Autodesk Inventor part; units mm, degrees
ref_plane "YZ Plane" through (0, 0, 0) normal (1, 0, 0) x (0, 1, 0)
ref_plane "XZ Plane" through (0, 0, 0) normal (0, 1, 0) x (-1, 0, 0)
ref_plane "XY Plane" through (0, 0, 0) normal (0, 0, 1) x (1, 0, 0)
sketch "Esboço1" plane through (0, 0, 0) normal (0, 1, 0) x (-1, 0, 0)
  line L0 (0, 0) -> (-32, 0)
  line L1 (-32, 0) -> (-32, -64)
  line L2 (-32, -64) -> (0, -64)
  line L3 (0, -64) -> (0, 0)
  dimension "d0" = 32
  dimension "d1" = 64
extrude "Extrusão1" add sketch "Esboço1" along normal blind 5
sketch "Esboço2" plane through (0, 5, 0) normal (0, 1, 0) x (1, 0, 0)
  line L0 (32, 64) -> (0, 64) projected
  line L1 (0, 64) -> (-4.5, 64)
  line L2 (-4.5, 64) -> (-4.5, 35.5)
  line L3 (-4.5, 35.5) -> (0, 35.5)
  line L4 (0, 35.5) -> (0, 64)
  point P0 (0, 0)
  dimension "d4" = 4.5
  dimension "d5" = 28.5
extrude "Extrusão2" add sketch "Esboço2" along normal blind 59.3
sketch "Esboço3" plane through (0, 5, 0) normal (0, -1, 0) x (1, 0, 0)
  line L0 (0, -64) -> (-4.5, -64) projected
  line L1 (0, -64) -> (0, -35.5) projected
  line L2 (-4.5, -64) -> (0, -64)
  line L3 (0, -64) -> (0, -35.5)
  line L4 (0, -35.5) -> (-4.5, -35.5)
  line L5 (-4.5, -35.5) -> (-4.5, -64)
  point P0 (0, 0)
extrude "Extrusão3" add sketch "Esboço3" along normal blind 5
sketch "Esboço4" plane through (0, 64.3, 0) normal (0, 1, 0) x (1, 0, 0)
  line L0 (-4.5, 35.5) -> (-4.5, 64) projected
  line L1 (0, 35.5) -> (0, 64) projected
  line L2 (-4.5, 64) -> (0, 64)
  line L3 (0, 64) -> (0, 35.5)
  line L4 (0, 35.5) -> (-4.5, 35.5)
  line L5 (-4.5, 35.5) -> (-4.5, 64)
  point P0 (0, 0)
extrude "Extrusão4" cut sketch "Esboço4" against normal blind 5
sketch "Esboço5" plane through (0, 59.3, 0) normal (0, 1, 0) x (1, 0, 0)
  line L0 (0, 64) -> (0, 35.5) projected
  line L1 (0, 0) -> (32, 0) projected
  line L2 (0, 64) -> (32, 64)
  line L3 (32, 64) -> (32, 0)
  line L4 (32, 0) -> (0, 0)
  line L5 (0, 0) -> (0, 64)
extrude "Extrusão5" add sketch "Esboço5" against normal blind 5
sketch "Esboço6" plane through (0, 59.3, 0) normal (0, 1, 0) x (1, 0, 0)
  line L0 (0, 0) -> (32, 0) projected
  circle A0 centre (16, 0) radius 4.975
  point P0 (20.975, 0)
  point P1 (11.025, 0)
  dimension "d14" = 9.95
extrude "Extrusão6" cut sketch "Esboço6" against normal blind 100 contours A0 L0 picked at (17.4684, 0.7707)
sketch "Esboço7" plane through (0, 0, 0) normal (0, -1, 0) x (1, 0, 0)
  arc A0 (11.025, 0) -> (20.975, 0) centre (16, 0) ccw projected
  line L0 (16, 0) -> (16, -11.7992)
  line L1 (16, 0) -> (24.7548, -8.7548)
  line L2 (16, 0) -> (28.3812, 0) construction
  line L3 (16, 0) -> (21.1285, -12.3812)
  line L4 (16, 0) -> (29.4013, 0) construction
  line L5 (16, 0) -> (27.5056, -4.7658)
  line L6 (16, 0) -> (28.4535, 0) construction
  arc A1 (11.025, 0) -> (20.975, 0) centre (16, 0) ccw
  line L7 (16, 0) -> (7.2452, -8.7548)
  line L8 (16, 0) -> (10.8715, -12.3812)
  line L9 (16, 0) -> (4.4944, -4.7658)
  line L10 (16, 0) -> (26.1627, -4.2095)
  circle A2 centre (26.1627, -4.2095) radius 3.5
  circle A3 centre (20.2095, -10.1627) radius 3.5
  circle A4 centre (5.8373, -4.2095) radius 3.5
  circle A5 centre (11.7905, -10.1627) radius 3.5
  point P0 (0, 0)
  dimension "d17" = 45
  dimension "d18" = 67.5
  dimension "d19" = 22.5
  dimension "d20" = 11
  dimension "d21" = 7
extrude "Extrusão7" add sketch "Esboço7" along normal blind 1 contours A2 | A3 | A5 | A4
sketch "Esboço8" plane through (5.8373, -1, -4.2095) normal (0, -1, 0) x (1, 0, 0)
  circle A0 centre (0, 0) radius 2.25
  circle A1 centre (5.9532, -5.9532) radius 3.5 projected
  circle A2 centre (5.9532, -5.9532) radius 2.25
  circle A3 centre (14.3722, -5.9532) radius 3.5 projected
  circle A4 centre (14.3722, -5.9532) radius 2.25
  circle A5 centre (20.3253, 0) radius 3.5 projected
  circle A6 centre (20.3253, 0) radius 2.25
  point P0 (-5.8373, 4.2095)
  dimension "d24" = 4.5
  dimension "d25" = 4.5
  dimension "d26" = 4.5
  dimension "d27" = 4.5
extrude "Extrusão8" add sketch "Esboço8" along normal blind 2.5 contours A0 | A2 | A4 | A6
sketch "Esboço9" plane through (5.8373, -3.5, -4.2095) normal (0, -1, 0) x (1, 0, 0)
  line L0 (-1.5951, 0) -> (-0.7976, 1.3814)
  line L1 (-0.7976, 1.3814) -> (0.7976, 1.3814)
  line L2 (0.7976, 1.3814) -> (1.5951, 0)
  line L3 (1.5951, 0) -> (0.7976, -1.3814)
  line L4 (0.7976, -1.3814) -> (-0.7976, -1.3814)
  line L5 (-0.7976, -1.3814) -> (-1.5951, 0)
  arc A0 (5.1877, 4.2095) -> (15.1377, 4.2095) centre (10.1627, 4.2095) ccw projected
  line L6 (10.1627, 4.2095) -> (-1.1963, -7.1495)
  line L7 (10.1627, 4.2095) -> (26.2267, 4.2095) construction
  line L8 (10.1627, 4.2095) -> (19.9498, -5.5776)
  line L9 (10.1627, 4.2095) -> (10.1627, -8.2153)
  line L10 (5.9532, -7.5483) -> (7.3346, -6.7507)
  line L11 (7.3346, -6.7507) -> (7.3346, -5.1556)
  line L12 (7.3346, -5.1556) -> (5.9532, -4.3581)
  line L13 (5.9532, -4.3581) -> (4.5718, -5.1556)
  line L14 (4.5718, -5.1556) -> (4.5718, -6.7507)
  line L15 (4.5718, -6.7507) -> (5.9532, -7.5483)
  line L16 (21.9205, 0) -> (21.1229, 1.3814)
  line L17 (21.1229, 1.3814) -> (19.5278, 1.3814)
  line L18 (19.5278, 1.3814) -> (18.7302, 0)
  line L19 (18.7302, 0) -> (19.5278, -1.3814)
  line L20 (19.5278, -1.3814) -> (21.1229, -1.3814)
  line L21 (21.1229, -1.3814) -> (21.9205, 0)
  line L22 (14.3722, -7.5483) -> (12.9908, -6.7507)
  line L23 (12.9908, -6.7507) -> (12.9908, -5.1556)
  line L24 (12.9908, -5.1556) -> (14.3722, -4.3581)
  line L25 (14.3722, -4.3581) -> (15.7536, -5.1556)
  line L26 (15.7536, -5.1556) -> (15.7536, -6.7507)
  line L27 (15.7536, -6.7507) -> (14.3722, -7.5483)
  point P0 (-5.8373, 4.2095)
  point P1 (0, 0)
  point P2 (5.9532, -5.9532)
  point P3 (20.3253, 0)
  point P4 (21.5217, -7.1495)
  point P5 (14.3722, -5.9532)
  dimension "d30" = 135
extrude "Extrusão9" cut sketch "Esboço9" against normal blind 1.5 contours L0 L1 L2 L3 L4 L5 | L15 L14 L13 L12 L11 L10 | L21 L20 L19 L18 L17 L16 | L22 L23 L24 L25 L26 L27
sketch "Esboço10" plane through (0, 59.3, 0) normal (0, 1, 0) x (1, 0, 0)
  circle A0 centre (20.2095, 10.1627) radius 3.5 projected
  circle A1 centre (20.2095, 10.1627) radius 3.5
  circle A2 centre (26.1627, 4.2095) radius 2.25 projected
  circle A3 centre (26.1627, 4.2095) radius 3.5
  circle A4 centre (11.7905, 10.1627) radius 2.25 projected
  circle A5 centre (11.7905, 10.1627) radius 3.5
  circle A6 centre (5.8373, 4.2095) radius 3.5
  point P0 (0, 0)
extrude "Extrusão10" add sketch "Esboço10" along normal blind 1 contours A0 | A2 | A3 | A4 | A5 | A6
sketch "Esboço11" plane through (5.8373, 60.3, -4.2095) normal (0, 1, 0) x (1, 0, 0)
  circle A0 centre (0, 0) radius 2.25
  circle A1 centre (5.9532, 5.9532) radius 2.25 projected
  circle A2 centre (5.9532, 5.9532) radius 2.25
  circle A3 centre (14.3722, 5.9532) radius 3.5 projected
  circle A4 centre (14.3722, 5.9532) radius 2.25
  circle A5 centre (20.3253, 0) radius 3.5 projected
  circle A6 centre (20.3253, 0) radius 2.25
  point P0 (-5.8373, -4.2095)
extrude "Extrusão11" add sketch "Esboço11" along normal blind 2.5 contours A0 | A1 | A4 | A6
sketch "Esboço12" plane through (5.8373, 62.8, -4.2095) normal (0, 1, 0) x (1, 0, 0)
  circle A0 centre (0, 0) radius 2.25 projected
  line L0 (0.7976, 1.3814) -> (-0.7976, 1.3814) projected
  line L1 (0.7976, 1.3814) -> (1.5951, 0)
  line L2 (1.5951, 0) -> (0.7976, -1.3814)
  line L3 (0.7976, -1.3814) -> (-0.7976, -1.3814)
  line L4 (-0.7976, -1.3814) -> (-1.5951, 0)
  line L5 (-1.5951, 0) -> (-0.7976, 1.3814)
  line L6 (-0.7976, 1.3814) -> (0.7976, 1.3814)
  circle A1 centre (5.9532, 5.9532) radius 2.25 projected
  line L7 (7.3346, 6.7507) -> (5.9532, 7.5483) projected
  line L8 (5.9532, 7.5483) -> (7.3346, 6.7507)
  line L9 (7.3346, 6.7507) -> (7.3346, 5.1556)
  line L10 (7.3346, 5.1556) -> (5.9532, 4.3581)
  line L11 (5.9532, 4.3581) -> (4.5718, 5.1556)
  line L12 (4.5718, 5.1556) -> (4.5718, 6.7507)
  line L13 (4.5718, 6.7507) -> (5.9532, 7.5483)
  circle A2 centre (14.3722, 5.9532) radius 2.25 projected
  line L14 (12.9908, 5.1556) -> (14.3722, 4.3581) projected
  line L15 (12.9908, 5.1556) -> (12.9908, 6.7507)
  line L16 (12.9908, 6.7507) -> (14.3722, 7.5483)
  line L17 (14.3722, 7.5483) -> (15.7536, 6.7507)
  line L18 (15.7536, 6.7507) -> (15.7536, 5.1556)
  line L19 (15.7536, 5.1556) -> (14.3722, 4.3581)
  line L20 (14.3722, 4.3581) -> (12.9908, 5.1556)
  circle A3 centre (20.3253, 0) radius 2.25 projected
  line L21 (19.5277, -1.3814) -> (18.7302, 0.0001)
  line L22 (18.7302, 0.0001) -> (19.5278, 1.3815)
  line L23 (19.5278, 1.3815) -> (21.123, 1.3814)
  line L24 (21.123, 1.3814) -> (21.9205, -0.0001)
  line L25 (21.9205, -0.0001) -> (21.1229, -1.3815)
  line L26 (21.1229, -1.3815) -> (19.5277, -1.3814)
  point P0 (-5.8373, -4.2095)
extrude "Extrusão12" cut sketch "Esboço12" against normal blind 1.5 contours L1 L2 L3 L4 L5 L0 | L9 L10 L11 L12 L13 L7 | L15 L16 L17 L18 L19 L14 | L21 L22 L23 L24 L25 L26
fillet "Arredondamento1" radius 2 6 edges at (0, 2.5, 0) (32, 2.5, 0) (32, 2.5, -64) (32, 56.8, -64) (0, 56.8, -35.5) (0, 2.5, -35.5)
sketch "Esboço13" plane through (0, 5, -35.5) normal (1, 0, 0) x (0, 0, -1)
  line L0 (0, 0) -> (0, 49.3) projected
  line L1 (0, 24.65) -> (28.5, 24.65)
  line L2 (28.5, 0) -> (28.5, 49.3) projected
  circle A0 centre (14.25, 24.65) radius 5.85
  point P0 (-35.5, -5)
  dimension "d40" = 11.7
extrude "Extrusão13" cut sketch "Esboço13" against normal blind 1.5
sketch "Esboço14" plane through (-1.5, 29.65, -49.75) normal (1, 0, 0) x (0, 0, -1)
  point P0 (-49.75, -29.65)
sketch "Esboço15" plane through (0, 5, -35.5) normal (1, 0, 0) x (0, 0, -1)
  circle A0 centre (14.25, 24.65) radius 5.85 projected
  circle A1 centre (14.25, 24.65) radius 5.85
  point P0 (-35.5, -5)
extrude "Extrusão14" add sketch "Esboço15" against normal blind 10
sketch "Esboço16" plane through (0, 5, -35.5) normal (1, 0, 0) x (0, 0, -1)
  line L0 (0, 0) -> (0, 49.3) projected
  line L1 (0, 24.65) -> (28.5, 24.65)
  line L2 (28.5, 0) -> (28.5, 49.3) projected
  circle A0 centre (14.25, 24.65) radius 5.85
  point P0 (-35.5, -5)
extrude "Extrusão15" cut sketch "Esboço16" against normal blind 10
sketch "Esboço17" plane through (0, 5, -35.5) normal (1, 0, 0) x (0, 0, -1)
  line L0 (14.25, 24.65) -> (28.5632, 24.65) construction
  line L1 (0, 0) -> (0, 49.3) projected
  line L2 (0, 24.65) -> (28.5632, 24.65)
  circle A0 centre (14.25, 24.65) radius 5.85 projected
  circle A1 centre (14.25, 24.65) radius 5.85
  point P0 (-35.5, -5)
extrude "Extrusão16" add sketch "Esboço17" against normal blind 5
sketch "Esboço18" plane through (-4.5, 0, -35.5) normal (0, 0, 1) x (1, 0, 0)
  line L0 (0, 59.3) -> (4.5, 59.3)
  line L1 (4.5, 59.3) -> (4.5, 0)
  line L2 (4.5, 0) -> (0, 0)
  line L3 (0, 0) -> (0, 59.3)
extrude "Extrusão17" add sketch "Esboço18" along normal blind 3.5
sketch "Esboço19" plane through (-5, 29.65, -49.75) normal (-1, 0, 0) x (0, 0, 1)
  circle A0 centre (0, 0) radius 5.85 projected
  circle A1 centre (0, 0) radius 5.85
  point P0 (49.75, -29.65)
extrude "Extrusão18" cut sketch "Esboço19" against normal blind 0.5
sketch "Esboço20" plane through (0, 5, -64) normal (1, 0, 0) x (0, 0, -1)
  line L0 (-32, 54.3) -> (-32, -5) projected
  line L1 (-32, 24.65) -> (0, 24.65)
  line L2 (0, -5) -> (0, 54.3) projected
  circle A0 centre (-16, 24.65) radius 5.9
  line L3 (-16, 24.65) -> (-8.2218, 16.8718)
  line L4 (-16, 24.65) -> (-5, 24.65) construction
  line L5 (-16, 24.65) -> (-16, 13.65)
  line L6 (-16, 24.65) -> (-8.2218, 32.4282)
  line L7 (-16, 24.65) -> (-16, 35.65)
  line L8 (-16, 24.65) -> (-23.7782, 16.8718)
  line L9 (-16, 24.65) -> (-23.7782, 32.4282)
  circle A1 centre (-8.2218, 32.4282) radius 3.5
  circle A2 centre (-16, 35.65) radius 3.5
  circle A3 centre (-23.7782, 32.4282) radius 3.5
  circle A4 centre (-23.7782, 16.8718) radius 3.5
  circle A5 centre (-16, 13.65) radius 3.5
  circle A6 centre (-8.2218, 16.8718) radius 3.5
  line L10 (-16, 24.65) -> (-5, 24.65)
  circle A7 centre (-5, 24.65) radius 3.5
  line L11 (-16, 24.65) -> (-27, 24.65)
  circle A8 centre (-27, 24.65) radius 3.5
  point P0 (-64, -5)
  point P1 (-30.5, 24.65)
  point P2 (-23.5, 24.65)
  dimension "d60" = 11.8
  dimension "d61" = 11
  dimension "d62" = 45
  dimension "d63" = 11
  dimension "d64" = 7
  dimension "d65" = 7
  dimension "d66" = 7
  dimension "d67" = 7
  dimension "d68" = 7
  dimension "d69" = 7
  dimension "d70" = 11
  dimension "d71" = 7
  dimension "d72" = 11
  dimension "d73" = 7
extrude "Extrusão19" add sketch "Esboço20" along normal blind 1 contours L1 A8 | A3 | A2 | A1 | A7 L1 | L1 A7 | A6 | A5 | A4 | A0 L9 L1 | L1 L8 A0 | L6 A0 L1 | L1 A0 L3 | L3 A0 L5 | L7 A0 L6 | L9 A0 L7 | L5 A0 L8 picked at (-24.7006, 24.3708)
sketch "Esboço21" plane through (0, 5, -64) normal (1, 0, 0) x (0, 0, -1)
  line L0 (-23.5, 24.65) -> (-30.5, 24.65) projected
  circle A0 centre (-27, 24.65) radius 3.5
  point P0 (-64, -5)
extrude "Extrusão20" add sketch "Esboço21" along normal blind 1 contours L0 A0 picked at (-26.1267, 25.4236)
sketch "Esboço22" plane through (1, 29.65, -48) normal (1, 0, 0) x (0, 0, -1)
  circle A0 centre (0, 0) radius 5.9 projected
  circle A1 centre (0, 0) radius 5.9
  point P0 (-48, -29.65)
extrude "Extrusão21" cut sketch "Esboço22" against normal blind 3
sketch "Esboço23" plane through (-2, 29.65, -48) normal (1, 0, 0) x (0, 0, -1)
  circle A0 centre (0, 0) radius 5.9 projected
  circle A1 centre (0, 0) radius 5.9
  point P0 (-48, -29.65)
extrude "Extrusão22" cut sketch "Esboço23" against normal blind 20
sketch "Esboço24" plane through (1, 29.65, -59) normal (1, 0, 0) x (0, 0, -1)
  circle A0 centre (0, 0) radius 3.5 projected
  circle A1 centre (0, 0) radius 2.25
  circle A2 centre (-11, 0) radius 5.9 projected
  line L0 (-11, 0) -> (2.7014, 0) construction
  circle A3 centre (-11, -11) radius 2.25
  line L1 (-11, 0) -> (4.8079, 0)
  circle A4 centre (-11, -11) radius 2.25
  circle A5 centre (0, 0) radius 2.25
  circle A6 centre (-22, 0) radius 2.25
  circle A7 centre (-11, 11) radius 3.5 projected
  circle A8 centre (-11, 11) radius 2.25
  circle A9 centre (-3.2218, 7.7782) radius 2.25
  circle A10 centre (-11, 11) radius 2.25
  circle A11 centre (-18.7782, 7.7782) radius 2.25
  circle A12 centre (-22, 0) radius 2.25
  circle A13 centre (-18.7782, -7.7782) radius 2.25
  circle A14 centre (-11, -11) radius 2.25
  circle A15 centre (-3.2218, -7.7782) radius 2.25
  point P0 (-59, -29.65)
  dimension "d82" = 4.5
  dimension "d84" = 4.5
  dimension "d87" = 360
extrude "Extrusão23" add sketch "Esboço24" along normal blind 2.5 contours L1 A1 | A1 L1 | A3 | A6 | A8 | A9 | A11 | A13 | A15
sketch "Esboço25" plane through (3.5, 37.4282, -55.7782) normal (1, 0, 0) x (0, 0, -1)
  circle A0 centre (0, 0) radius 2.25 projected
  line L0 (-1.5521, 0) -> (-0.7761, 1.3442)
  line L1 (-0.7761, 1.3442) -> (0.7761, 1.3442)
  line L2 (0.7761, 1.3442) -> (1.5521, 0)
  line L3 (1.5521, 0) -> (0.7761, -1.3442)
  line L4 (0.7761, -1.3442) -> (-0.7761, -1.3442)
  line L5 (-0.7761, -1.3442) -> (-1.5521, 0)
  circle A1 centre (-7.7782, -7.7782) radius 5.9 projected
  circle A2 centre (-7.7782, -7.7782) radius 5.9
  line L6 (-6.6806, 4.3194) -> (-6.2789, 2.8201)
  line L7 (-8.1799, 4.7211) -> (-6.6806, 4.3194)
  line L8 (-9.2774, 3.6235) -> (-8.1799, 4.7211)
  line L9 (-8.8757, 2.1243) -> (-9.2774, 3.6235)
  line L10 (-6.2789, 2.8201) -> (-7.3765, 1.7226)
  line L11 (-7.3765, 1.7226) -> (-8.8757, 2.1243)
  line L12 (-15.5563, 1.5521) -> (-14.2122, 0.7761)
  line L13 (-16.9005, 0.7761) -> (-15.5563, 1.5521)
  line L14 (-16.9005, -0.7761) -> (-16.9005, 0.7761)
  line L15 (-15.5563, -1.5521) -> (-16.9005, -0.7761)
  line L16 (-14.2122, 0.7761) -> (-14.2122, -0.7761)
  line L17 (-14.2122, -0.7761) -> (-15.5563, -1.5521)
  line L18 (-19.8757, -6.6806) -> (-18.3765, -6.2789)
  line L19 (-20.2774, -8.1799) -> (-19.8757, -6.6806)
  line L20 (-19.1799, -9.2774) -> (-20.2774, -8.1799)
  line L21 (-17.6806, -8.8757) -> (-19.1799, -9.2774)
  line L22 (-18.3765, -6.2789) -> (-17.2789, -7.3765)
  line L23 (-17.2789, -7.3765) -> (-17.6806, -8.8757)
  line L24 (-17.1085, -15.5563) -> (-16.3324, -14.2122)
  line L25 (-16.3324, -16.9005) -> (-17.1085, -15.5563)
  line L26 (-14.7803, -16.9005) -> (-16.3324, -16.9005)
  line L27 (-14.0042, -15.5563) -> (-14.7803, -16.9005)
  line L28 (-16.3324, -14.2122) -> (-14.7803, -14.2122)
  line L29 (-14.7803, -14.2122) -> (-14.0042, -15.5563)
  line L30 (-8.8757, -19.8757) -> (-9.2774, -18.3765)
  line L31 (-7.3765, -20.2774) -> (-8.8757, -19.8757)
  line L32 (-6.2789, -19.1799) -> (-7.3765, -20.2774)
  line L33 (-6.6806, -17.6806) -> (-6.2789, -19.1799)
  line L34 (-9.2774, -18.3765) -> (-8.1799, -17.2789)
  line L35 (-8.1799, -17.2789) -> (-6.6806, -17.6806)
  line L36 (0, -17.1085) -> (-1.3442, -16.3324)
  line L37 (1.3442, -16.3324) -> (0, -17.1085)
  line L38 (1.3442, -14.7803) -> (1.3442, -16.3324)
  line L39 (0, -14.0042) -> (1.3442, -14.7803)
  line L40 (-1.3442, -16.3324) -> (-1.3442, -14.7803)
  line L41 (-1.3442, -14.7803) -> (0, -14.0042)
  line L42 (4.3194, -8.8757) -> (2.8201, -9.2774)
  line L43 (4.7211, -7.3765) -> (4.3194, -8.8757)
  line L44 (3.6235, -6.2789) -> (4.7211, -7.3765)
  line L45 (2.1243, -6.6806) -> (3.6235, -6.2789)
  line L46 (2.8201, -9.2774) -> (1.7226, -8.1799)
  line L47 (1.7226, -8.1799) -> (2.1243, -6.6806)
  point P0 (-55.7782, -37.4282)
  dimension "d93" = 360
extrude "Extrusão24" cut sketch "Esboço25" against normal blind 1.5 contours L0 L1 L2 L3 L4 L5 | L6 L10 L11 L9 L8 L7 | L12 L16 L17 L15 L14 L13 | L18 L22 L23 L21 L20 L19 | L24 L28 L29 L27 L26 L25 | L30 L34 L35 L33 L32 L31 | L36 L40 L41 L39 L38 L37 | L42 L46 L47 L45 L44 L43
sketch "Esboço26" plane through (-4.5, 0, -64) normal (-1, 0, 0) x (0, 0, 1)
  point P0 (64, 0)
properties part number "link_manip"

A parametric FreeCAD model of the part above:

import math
import FreeCAD as App
import Part
import Sketcher
Q = App.Units.Quantity


def edges_at(feature, points):
    """Names of the edges that pass closest to the given points."""
    edges = feature.Shape.Edges
    near = lambda p: min(range(len(edges)), key=lambda i: edges[i].distToShape(Part.Vertex(*p))[0])
    return sorted({f"Edge{near(p) + 1}" for p in points})


def add_polygon(sketch, points):
    """Adds a closed chain of lines whose ends are joined by coincident constraints."""
    first, n = sketch.GeometryCount, len(points)
    for a, b in zip(points, points[1:] + points[:1]):
        sketch.addGeometry(Part.LineSegment(App.Vector(*a, 0), App.Vector(*b, 0)), False)
    for i in range(n):
        sketch.addConstraint(Sketcher.Constraint("Coincident", first + i, 2, first + (i + 1) % n, 1))

doc = App.newDocument("Part")
body = doc.addObject("PartDesign::Body", "Body")
body.AllowCompound = True

# Sketch on XZ plane
sketch1 = body.newObject("Sketcher::SketchObject", "Sketch")
sketch1.AttachmentSupport = (doc.getObject("XZ_Plane"), [""])
sketch1.MapMode = "FlatFace"
add_polygon(sketch1, [(0, -64), (0, 0), (32, 0), (32, -64)])  # lines 0-3
sketch1.addConstraint([
    Sketcher.Constraint("Vertical", 0),
    Sketcher.Constraint("Horizontal", 1),
    Sketcher.Constraint("Vertical", 2),
    Sketcher.Constraint("Horizontal", 3),
    Sketcher.Constraint("Coincident", 0, 2, -1, 1),
    Sketcher.Constraint("DistanceX", 1, 1, 1, 2, 32.0),
    Sketcher.Constraint("DistanceY", 0, 1, 0, 2, 64.0),
])
pad1 = body.newObject("PartDesign::Pad", "Pad")
pad1.Profile = sketch1
pad1.Length = 5
pad1.Reversed = True

# Sketch on XZ plane
sketch2 = body.newObject("Sketcher::SketchObject", "Sketch001")
sketch2.AttachmentSupport = (doc.getObject("XZ_Plane"), [""])
sketch2.MapMode = "FlatFace"
sketch2.AttachmentOffset = App.Placement(App.Vector(0, 0, -5), App.Rotation())
add_polygon(sketch2, [(0, -35.5), (0, -64), (-4.5, -64), (-4.5, -35.5)])  # lines 0-3
sketch2.addConstraint([
    Sketcher.Constraint("Vertical", 0),
    Sketcher.Constraint("Horizontal", 1),
    Sketcher.Constraint("Vertical", 2),
    Sketcher.Constraint("Horizontal", 3),
    Sketcher.Constraint("PointOnObject", 0, 2, -2),
    Sketcher.Constraint("DistanceX", 1, 2, 1, 1, 4.5),
    Sketcher.Constraint("DistanceY", 0, 2, 0, 1, 28.5),
    Sketcher.Constraint("DistanceY", 0, 2, -1, 1, 64.0),
])
pad2 = body.newObject("PartDesign::Pad", "Pad001")
pad2.Profile = sketch2
pad2.Length = 59.3
pad2.Reversed = True

# Sketch on XZ plane
sketch3 = body.newObject("Sketcher::SketchObject", "Sketch002")
sketch3.AttachmentSupport = (doc.getObject("XZ_Plane"), [""])
sketch3.MapMode = "FlatFace"
sketch3.AttachmentOffset = App.Placement(App.Vector(0, 0, -5), App.Rotation())
add_polygon(sketch3, [(-4.5, -64), (0, -64), (0, -35.5), (-4.5, -35.5)])  # lines 0-3
sketch3.addConstraint([
    Sketcher.Constraint("Horizontal", 0),
    Sketcher.Constraint("Vertical", 1),
    Sketcher.Constraint("Horizontal", 2),
    Sketcher.Constraint("Vertical", 3),
    Sketcher.Constraint("PointOnObject", 0, 2, -2),
    Sketcher.Constraint("DistanceX", 0, 1, 0, 2, 4.5),
    Sketcher.Constraint("DistanceY", 1, 1, 1, 2, 28.5),
    Sketcher.Constraint("DistanceY", 0, 2, -1, 1, 64.0),
])
pad3 = body.newObject("PartDesign::Pad", "Pad002")
pad3.Profile = sketch3
pad3.Length = 5

# Sketch on XZ plane
sketch4 = body.newObject("Sketcher::SketchObject", "Sketch003")
sketch4.AttachmentSupport = (doc.getObject("XZ_Plane"), [""])
sketch4.MapMode = "FlatFace"
sketch4.AttachmentOffset = App.Placement(App.Vector(0, 0, -64.3), App.Rotation())
add_polygon(sketch4, [(-4.5, -64), (-4.5, -35.5), (0, -35.5), (0, -64)])  # lines 0-3
sketch4.addConstraint([
    Sketcher.Constraint("Vertical", 0),
    Sketcher.Constraint("Horizontal", 1),
    Sketcher.Constraint("Vertical", 2),
    Sketcher.Constraint("Horizontal", 3),
    Sketcher.Constraint("PointOnObject", 1, 2, -2),
    Sketcher.Constraint("DistanceX", 1, 1, 1, 2, 4.5),
    Sketcher.Constraint("DistanceY", 0, 1, 0, 2, 28.5),
    Sketcher.Constraint("DistanceY", 2, 2, -1, 1, 64.0),
])
pocket1 = body.newObject("PartDesign::Pocket", "Pocket")
pocket1.Profile = sketch4
pocket1.Length = 5
pocket1.Reversed = True

# Sketch on XZ plane
sketch5 = body.newObject("Sketcher::SketchObject", "Sketch004")
sketch5.AttachmentSupport = (doc.getObject("XZ_Plane"), [""])
sketch5.MapMode = "FlatFace"
sketch5.AttachmentOffset = App.Placement(App.Vector(0, 0, -59.3), App.Rotation())
add_polygon(sketch5, [(32, -64), (0, -64), (0, 0), (32, 0)])  # lines 0-3
sketch5.addConstraint([
    Sketcher.Constraint("Horizontal", 0),
    Sketcher.Constraint("Vertical", 1),
    Sketcher.Constraint("Horizontal", 2),
    Sketcher.Constraint("Vertical", 3),
    Sketcher.Constraint("Coincident", 1, 2, -1, 1),
    Sketcher.Constraint("DistanceX", 0, 2, 0, 1, 32.0),
    Sketcher.Constraint("DistanceY", 1, 1, 1, 2, 64.0),
])
pad4 = body.newObject("PartDesign::Pad", "Pad003")
pad4.Profile = sketch5
pad4.Length = 5

# Sketch on XZ plane
sketch6 = body.newObject("Sketcher::SketchObject", "Sketch005")
sketch6.AttachmentSupport = (doc.getObject("XZ_Plane"), [""])
sketch6.MapMode = "FlatFace"
sketch6.AttachmentOffset = App.Placement(App.Vector(0, 0, -59.3), App.Rotation())
sketch6.addGeometry([
    Part.ArcOfCircle(Part.Circle(App.Vector(16, 0, 0), App.Vector(0, 0, 1), 4.975), math.radians(180), math.radians(360)),
    Part.LineSegment(App.Vector(11.025, 0, 0), App.Vector(20.975, 0, 0)),
], False)
sketch6.addConstraint([
    Sketcher.Constraint("Coincident", 0, 1, 1, 1),
    Sketcher.Constraint("Coincident", 1, 2, 0, 2),
    Sketcher.Constraint("Horizontal", 1),
    Sketcher.Constraint("PointOnObject", 0, 3, -1),
    Sketcher.Constraint("PointOnObject", 0, 1, -1),
    Sketcher.Constraint("Radius", 0, 4.975),
    Sketcher.Constraint("DistanceX", -1, 1, 0, 3, 16.0),
])
pocket2 = body.newObject("PartDesign::Pocket", "Pocket001")
pocket2.Profile = sketch6
pocket2.Length = 100
pocket2.Reversed = True

# Sketch on XZ plane
sketch7 = body.newObject("Sketcher::SketchObject", "Sketch006")
sketch7.AttachmentSupport = (doc.getObject("XZ_Plane"), [""])
sketch7.MapMode = "FlatFace"
sketch7.addGeometry([
    Part.Circle(App.Vector(26.1627, -4.2095, 0), App.Vector(0, 0, 1), 3.5),
    Part.Circle(App.Vector(20.2095, -10.1627, 0), App.Vector(0, 0, 1), 3.5),
    Part.Circle(App.Vector(11.7905, -10.1627, 0), App.Vector(0, 0, 1), 3.5),
    Part.Circle(App.Vector(5.8373, -4.2095, 0), App.Vector(0, 0, 1), 3.5),
], False)
sketch7.addConstraint([
    Sketcher.Constraint("Equal", 0, 1),
    Sketcher.Constraint("Equal", 1, 2),
    Sketcher.Constraint("Equal", 2, 3),
    Sketcher.Constraint("Horizontal", 1, 3, 2, 3),
    Sketcher.Constraint("Horizontal", 0, 3, 3, 3),
    Sketcher.Constraint("Diameter", 0, 7.0),
    Sketcher.Constraint("DistanceX", 2, 3, 1, 3, 8.419),
    Sketcher.Constraint("DistanceX", -1, 1, 0, 3, 26.1627),
    Sketcher.Constraint("DistanceY", 0, 3, -1, 1, 4.2095),
    Sketcher.Constraint("DistanceX", -1, 1, 1, 3, 20.2095),
    Sketcher.Constraint("DistanceY", 1, 3, -1, 1, 10.1627),
    Sketcher.Constraint("DistanceX", -1, 1, 3, 3, 5.8373),
])
pad5 = body.newObject("PartDesign::Pad", "Pad004")
pad5.Profile = sketch7
pad5.Length = 1

# Sketch on XZ plane
sketch8 = body.newObject("Sketcher::SketchObject", "Sketch007")
sketch8.AttachmentSupport = (doc.getObject("XZ_Plane"), [""])
sketch8.MapMode = "FlatFace"
sketch8.AttachmentOffset = App.Placement(App.Vector(0, 0, 1), App.Rotation())
sketch8.addGeometry([
    Part.Circle(App.Vector(5.8373, -4.2095, 0), App.Vector(0, 0, 1), 2.25),
    Part.Circle(App.Vector(11.7905, -10.1627, 0), App.Vector(0, 0, 1), 2.25),
    Part.Circle(App.Vector(20.2095, -10.1627, 0), App.Vector(0, 0, 1), 2.25),
    Part.Circle(App.Vector(26.1626, -4.2095, 0), App.Vector(0, 0, 1), 2.25),
], False)
sketch8.addConstraint([
    Sketcher.Constraint("Equal", 0, 1),
    Sketcher.Constraint("Equal", 1, 2),
    Sketcher.Constraint("Equal", 2, 3),
    Sketcher.Constraint("Horizontal", 1, 3, 2, 3),
    Sketcher.Constraint("Horizontal", 0, 3, 3, 3),
    Sketcher.Constraint("Diameter", 0, 4.5),
    Sketcher.Constraint("DistanceX", 1, 3, 2, 3, 8.419),
    Sketcher.Constraint("DistanceX", 2, 3, 3, 3, 5.953),
    Sketcher.Constraint("DistanceX", -1, 1, 0, 3, 5.8373),
    Sketcher.Constraint("DistanceY", 0, 3, -1, 1, 4.2095),
    Sketcher.Constraint("DistanceX", -1, 1, 1, 3, 11.7905),
    Sketcher.Constraint("DistanceY", 1, 3, -1, 1, 10.1627),
])
pad6 = body.newObject("PartDesign::Pad", "Pad005")
pad6.Profile = sketch8
pad6.Length = 2.5

# Sketch on XZ plane
sketch9 = body.newObject("Sketcher::SketchObject", "Sketch008")
sketch9.AttachmentSupport = (doc.getObject("XZ_Plane"), [""])
sketch9.MapMode = "FlatFace"
sketch9.AttachmentOffset = App.Placement(App.Vector(0, 0, 3.5), App.Rotation())
add_polygon(sketch9, [(5.0397, -2.8281), (4.2422, -4.2095), (5.0397, -5.5909), (6.6349, -5.5909), (7.4324, -4.2095), (6.6349, -2.8281)])  # lines 0-5
add_polygon(sketch9, [(10.4091, -10.9602), (11.7905, -11.7578), (13.1719, -10.9602), (13.1719, -9.3651), (11.7905, -8.5676), (10.4091, -9.3651)])  # lines 6-11
add_polygon(sketch9, [(26.9602, -5.5909), (27.7578, -4.2095), (26.9602, -2.8281), (25.3651, -2.8281), (24.5675, -4.2095), (25.3651, -5.5909)])  # lines 12-17
add_polygon(sketch9, [(18.8281, -10.9602), (20.2095, -11.7578), (21.5909, -10.9602), (21.5909, -9.3651), (20.2095, -8.5676), (18.8281, -9.3651)])  # lines 18-23
sketch9.addConstraint([
    Sketcher.Constraint("Horizontal", 2),
    Sketcher.Constraint("Horizontal", 5),
    Sketcher.Constraint("Vertical", 8),
    Sketcher.Constraint("Vertical", 11),
    Sketcher.Constraint("Horizontal", 14),
    Sketcher.Constraint("Horizontal", 17),
    Sketcher.Constraint("Vertical", 20),
    Sketcher.Constraint("Vertical", 23),
    Sketcher.Constraint("Parallel", 0, 3),
    Sketcher.Constraint("Parallel", 1, 4),
    Sketcher.Constraint("Perpendicular", 3, 6),
    Sketcher.Constraint("Perpendicular", 4, 7),
    Sketcher.Constraint("Parallel", 6, 9),
    Sketcher.Constraint("Parallel", 7, 10),
    Sketcher.Constraint("Perpendicular", 9, 12),
    Sketcher.Constraint("Perpendicular", 10, 13),
    Sketcher.Constraint("Parallel", 12, 15),
    Sketcher.Constraint("Parallel", 13, 16),
    Sketcher.Constraint("Perpendicular", 15, 18),
    Sketcher.Constraint("Perpendicular", 16, 19),
    Sketcher.Constraint("Parallel", 18, 21),
    Sketcher.Constraint("Parallel", 19, 22),
    Sketcher.Constraint("Horizontal", 0, 2, 3, 2),
    Sketcher.Constraint("Horizontal", 8, 2, 10, 2),
    Sketcher.Constraint("Horizontal", 7, 2, 11, 2),
    Sketcher.Constraint("Horizontal", 3, 2, 12, 2),
    Sketcher.Constraint("Horizontal", 5, 2, 13, 2),
    Sketcher.Constraint("Horizontal", 12, 2, 15, 2),
    Sketcher.Constraint("Horizontal", 2, 2, 16, 2),
    Sketcher.Constraint("Horizontal", 6, 2, 18, 2),
    Sketcher.Constraint("Horizontal", 11, 2, 19, 2),
    Sketcher.Constraint("Horizontal", 10, 2, 20, 2),
    Sketcher.Constraint("Horizontal", 9, 2, 21, 2),
    Sketcher.Constraint("Horizontal", 20, 2, 22, 2),
    Sketcher.Constraint("Vertical", 2, 2, 4, 2),
    Sketcher.Constraint("Vertical", 1, 2, 5, 2),
    Sketcher.Constraint("Equal", 5, 14),
    Sketcher.Constraint("Equal", 17, 8),
    Sketcher.Constraint("Equal", 4, 6),
    Sketcher.Constraint("DistanceX", 14, 2, 14, 1, 1.595),
    Sketcher.Constraint("Distance", 0, 1.595),
    Sketcher.Constraint("DistanceY", 1, 2, -1, 1, 5.591),
    Sketcher.Constraint("DistanceX", -1, 1, 2, 2, 6.635),
    Sketcher.Constraint("DistanceY", 4, 2, -1, 1, 2.828),
    Sketcher.Constraint("DistanceX", -1, 1, 7, 2, 13.172),
    Sketcher.Constraint("DistanceY", 8, 2, -1, 1, 9.365),
    Sketcher.Constraint("DistanceX", -1, 1, 14, 2, 25.365),
    Sketcher.Constraint("DistanceX", -1, 1, 19, 2, 21.591),
])
pocket3 = body.newObject("PartDesign::Pocket", "Pocket002")
pocket3.Profile = sketch9
pocket3.Length = 1.5

# Sketch on XZ plane
sketch10 = body.newObject("Sketcher::SketchObject", "Sketch009")
sketch10.AttachmentSupport = (doc.getObject("XZ_Plane"), [""])
sketch10.MapMode = "FlatFace"
sketch10.AttachmentOffset = App.Placement(App.Vector(0, 0, -59.3), App.Rotation())
sketch10.addGeometry([
    Part.Circle(App.Vector(20.2095, -10.1627, 0), App.Vector(0, 0, 1), 3.5),
    Part.Circle(App.Vector(26.1627, -4.2095, 0), App.Vector(0, 0, 1), 3.5),
    Part.Circle(App.Vector(11.7905, -10.1627, 0), App.Vector(0, 0, 1), 3.5),
    Part.Circle(App.Vector(5.8373, -4.2095, 0), App.Vector(0, 0, 1), 3.5),
], False)
sketch10.addConstraint([
    Sketcher.Constraint("Equal", 0, 1),
    Sketcher.Constraint("Equal", 1, 2),
    Sketcher.Constraint("Equal", 2, 3),
    Sketcher.Constraint("Horizontal", 0, 3, 2, 3),
    Sketcher.Constraint("Horizontal", 1, 3, 3, 3),
    Sketcher.Constraint("Diameter", 0, 7.0),
    Sketcher.Constraint("DistanceX", 2, 3, 0, 3, 8.419),
    Sketcher.Constraint("DistanceX", -1, 1, 0, 3, 20.2095),
    Sketcher.Constraint("DistanceY", 0, 3, -1, 1, 10.1627),
    Sketcher.Constraint("DistanceX", -1, 1, 1, 3, 26.1627),
    Sketcher.Constraint("DistanceY", 1, 3, -1, 1, 4.2095),
    Sketcher.Constraint("DistanceX", -1, 1, 3, 3, 5.8373),
])
pad7 = body.newObject("PartDesign::Pad", "Pad006")
pad7.Profile = sketch10
pad7.Length = 1
pad7.Reversed = True

# Sketch on XZ plane
sketch11 = body.newObject("Sketcher::SketchObject", "Sketch010")
sketch11.AttachmentSupport = (doc.getObject("XZ_Plane"), [""])
sketch11.MapMode = "FlatFace"
sketch11.AttachmentOffset = App.Placement(App.Vector(0, 0, -60.3), App.Rotation())
sketch11.addGeometry([
    Part.Circle(App.Vector(5.8373, -4.2095, 0), App.Vector(0, 0, 1), 2.25),
    Part.Circle(App.Vector(11.7905, -10.1627, 0), App.Vector(0, 0, 1), 2.25),
    Part.Circle(App.Vector(20.2095, -10.1627, 0), App.Vector(0, 0, 1), 2.25),
    Part.Circle(App.Vector(26.1626, -4.2095, 0), App.Vector(0, 0, 1), 2.25),
], False)
sketch11.addConstraint([
    Sketcher.Constraint("Equal", 0, 1),
    Sketcher.Constraint("Equal", 1, 2),
    Sketcher.Constraint("Equal", 2, 3),
    Sketcher.Constraint("Horizontal", 1, 3, 2, 3),
    Sketcher.Constraint("Horizontal", 0, 3, 3, 3),
    Sketcher.Constraint("Diameter", 0, 4.5),
    Sketcher.Constraint("DistanceX", 1, 3, 2, 3, 8.419),
    Sketcher.Constraint("DistanceX", 2, 3, 3, 3, 5.953),
    Sketcher.Constraint("DistanceX", -1, 1, 0, 3, 5.8373),
    Sketcher.Constraint("DistanceY", 0, 3, -1, 1, 4.2095),
    Sketcher.Constraint("DistanceX", -1, 1, 1, 3, 11.7905),
    Sketcher.Constraint("DistanceY", 1, 3, -1, 1, 10.1627),
])
pad8 = body.newObject("PartDesign::Pad", "Pad007")
pad8.Profile = sketch11
pad8.Length = 2.5
pad8.Reversed = True

# Sketch on XZ plane
sketch12 = body.newObject("Sketcher::SketchObject", "Sketch011")
sketch12.AttachmentSupport = (doc.getObject("XZ_Plane"), [""])
sketch12.MapMode = "FlatFace"
sketch12.AttachmentOffset = App.Placement(App.Vector(0, 0, -62.8), App.Rotation())
add_polygon(sketch12, [(7.4324, -4.2095), (6.6349, -5.5909), (5.0397, -5.5909), (4.2422, -4.2095), (5.0397, -2.8281), (6.6349, -2.8281)])  # lines 0-5
add_polygon(sketch12, [(13.1719, -9.3651), (13.1719, -10.9602), (11.7905, -11.7578), (10.4091, -10.9602), (10.4091, -9.3651), (11.7905, -8.5676)])  # lines 6-11
add_polygon(sketch12, [(18.8281, -10.9602), (18.8281, -9.3651), (20.2095, -8.5676), (21.5909, -9.3651), (21.5909, -10.9602), (20.2095, -11.7578)])  # lines 12-17
add_polygon(sketch12, [(24.5675, -4.2096), (25.365, -2.8281), (26.9602, -2.828), (27.7578, -4.2094), (26.9603, -5.5909), (25.3651, -5.591)])  # lines 18-23
sketch12.addConstraint([
    Sketcher.Constraint("Horizontal", 1),
    Sketcher.Constraint("Horizontal", 4),
    Sketcher.Constraint("Vertical", 6),
    Sketcher.Constraint("Vertical", 9),
    Sketcher.Constraint("Vertical", 12),
    Sketcher.Constraint("Vertical", 15),
    Sketcher.Constraint("Horizontal", 19),
    Sketcher.Constraint("Horizontal", 22),
    Sketcher.Constraint("Parallel", 0, 3),
    Sketcher.Constraint("Parallel", 2, 5),
    Sketcher.Constraint("Perpendicular", 5, 7),
    Sketcher.Constraint("Perpendicular", 3, 8),
    Sketcher.Constraint("Parallel", 7, 10),
    Sketcher.Constraint("Parallel", 8, 11),
    Sketcher.Constraint("Parallel", 10, 13),
    Sketcher.Constraint("Parallel", 11, 14),
    Sketcher.Constraint("Parallel", 13, 16),
    Sketcher.Constraint("Parallel", 14, 17),
    Sketcher.Constraint("Perpendicular", 17, 18),
    Sketcher.Constraint("Perpendicular", 16, 20),
    Sketcher.Constraint("Parallel", 18, 21),
    Sketcher.Constraint("Parallel", 20, 23),
    Sketcher.Constraint("Horizontal", 2, 2, 5, 2),
    Sketcher.Constraint("Horizontal", 6, 2, 8, 2),
    Sketcher.Constraint("Horizontal", 9, 2, 11, 2),
    Sketcher.Constraint("Horizontal", 11, 2, 12, 2),
    Sketcher.Constraint("Horizontal", 10, 2, 13, 2),
    Sketcher.Constraint("Horizontal", 12, 2, 14, 2),
    Sketcher.Constraint("Horizontal", 8, 2, 15, 2),
    Sketcher.Constraint("Horizontal", 7, 2, 16, 2),
    Sketcher.Constraint("Horizontal", 4, 2, 18, 2),
    Sketcher.Constraint("Horizontal", 5, 2, 20, 2),
    Sketcher.Constraint("Horizontal", 1, 2, 21, 2),
    Sketcher.Constraint("Horizontal", 5, 2, 23, 2),
    Sketcher.Constraint("Vertical", 1, 2, 3, 2),
    Sketcher.Constraint("Vertical", 0, 2, 4, 2),
    Sketcher.Constraint("Equal", 4, 19),
    Sketcher.Constraint("Equal", 22, 6),
    Sketcher.Constraint("Equal", 5, 7),
    Sketcher.Constraint("DistanceY", 6, 2, 6, 1, 1.595),
    Sketcher.Constraint("Distance", 0, 1.595),
    Sketcher.Constraint("DistanceX", -1, 1, 0, 2, 6.635),
    Sketcher.Constraint("DistanceY", 0, 2, -1, 1, 5.591),
    Sketcher.Constraint("DistanceY", 3, 2, -1, 1, 2.828),
    Sketcher.Constraint("DistanceX", -1, 1, 6, 2, 13.172),
    Sketcher.Constraint("DistanceY", 9, 2, -1, 1, 9.365),
    Sketcher.Constraint("DistanceX", -1, 1, 12, 2, 18.828),
    Sketcher.Constraint("DistanceX", -1, 1, 18, 2, 25.365),
])
pocket4 = body.newObject("PartDesign::Pocket", "Pocket003")
pocket4.Profile = sketch12
pocket4.Length = 1.5
pocket4.Reversed = True
doc.recompute()

fillet = body.newObject("PartDesign::Fillet", "Fillet")
fillet.Base = (pocket4, edges_at(pocket4, [
    (0, 2.5, 0),
    (32, 2.5, 0),
    (32, 2.5, -64),
    (32, 56.8, -64),
    (0, 56.8, -35.5),
    (0, 2.5, -35.5),
]))
fillet.Radius = 2

# Sketch on YZ plane
sketch13 = body.newObject("Sketcher::SketchObject", "Sketch012")
sketch13.AttachmentSupport = (doc.getObject("YZ_Plane"), [""])
sketch13.MapMode = "FlatFace"
sketch13.addGeometry(Part.Circle(App.Vector(29.65, -49.75, 0), App.Vector(0, 0, 1), 5.85), False)
sketch13.addConstraint([
    Sketcher.Constraint("Diameter", 0, 11.7),
    Sketcher.Constraint("DistanceX", -1, 1, 0, 3, 29.65),
    Sketcher.Constraint("DistanceY", 0, 3, -1, 1, 49.75),
])
pocket5 = body.newObject("PartDesign::Pocket", "Pocket004")
pocket5.Profile = sketch13
pocket5.Length = 1.5

# Sketch on YZ plane
sketch14 = body.newObject("Sketcher::SketchObject", "Sketch013")
sketch14.AttachmentSupport = (doc.getObject("YZ_Plane"), [""])
sketch14.MapMode = "FlatFace"
sketch14.addGeometry(Part.Circle(App.Vector(29.65, -49.75, 0), App.Vector(0, 0, 1), 5.85), False)
sketch14.addConstraint([
    Sketcher.Constraint("Diameter", 0, 11.7),
    Sketcher.Constraint("DistanceX", -1, 1, 0, 3, 29.65),
    Sketcher.Constraint("DistanceY", 0, 3, -1, 1, 49.75),
])
pad9 = body.newObject("PartDesign::Pad", "Pad008")
pad9.Profile = sketch14
pad9.Length = 10
pad9.Reversed = True

# Sketch on YZ plane
sketch15 = body.newObject("Sketcher::SketchObject", "Sketch014")
sketch15.AttachmentSupport = (doc.getObject("YZ_Plane"), [""])
sketch15.MapMode = "FlatFace"
sketch15.addGeometry(Part.Circle(App.Vector(29.65, -49.75, 0), App.Vector(0, 0, 1), 5.85), False)
sketch15.addConstraint([
    Sketcher.Constraint("Diameter", 0, 11.7),
    Sketcher.Constraint("DistanceX", -1, 1, 0, 3, 29.65),
    Sketcher.Constraint("DistanceY", 0, 3, -1, 1, 49.75),
])
pocket6 = body.newObject("PartDesign::Pocket", "Pocket005")
pocket6.Profile = sketch15
pocket6.Length = 10

# Sketch on YZ plane
sketch16 = body.newObject("Sketcher::SketchObject", "Sketch015")
sketch16.AttachmentSupport = (doc.getObject("YZ_Plane"), [""])
sketch16.MapMode = "FlatFace"
sketch16.addGeometry(Part.Circle(App.Vector(29.65, -49.75, 0), App.Vector(0, 0, 1), 5.85), False)
sketch16.addConstraint([
    Sketcher.Constraint("Diameter", 0, 11.7),
    Sketcher.Constraint("DistanceX", -1, 1, 0, 3, 29.65),
    Sketcher.Constraint("DistanceY", 0, 3, -1, 1, 49.75),
])
pad10 = body.newObject("PartDesign::Pad", "Pad009")
pad10.Profile = sketch16
pad10.Length = 5
pad10.Reversed = True

# Sketch on XY plane
sketch17 = body.newObject("Sketcher::SketchObject", "Sketch016")
sketch17.AttachmentSupport = (doc.getObject("XY_Plane"), [""])
sketch17.MapMode = "FlatFace"
sketch17.AttachmentOffset = App.Placement(App.Vector(0, 0, -35.5), App.Rotation())
add_polygon(sketch17, [(0, 59.3), (-4.5, 59.3), (-4.5, 0), (0, 0)])  # lines 0-3
sketch17.addConstraint([
    Sketcher.Constraint("Horizontal", 0),
    Sketcher.Constraint("Vertical", 1),
    Sketcher.Constraint("Horizontal", 2),
    Sketcher.Constraint("Vertical", 3),
    Sketcher.Constraint("Coincident", 2, 2, -1, 1),
    Sketcher.Constraint("DistanceX", 0, 2, 0, 1, 4.5),
    Sketcher.Constraint("DistanceY", 1, 2, 1, 1, 59.3),
])
pad11 = body.newObject("PartDesign::Pad", "Pad010")
pad11.Profile = sketch17
pad11.Length = 3.5

# Sketch on YZ plane
sketch18 = body.newObject("Sketcher::SketchObject", "Sketch017")
sketch18.AttachmentSupport = (doc.getObject("YZ_Plane"), [""])
sketch18.MapMode = "FlatFace"
sketch18.AttachmentOffset = App.Placement(App.Vector(0, 0, -5), App.Rotation())
sketch18.addGeometry(Part.Circle(App.Vector(29.65, -49.75, 0), App.Vector(0, 0, 1), 5.85), False)
sketch18.addConstraint([
    Sketcher.Constraint("Diameter", 0, 11.7),
    Sketcher.Constraint("DistanceX", -1, 1, 0, 3, 29.65),
    Sketcher.Constraint("DistanceY", 0, 3, -1, 1, 49.75),
])
pocket7 = body.newObject("PartDesign::Pocket", "Pocket006")
pocket7.Profile = sketch18
pocket7.Length = 0.5
pocket7.Reversed = True

# Sketch on YZ plane
sketch19 = body.newObject("Sketcher::SketchObject", "Sketch018")
sketch19.AttachmentSupport = (doc.getObject("YZ_Plane"), [""])
sketch19.MapMode = "FlatFace"
sketch19.addGeometry([
    Part.LineSegment(App.Vector(29.65, -40.5, 0), App.Vector(29.65, -33.5, 0)),  # 0
    Part.ArcOfCircle(Part.Circle(App.Vector(29.65, -37, 0), App.Vector(0, 0, 1), 3.5), math.radians(90), math.radians(270)),  # 1
    Part.Circle(App.Vector(37.4282, -40.2218, 0), App.Vector(0, 0, 1), 3.5),  # 2
    Part.Circle(App.Vector(40.65, -48, 0), App.Vector(0, 0, 1), 3.5),  # 3
    Part.Circle(App.Vector(37.4282, -55.7782, 0), App.Vector(0, 0, 1), 3.5),  # 4
    Part.Circle(App.Vector(29.65, -59, 0), App.Vector(0, 0, 1), 3.5),  # 5
    Part.Circle(App.Vector(21.8718, -55.7782, 0), App.Vector(0, 0, 1), 3.5),  # 6
    Part.Circle(App.Vector(18.65, -48, 0), App.Vector(0, 0, 1), 3.5),  # 7
    Part.Circle(App.Vector(21.8718, -40.2218, 0), App.Vector(0, 0, 1), 3.5),  # 8
    Part.Circle(App.Vector(29.65, -48, 0), App.Vector(0, 0, 1), 5.9),  # 9
], False)
sketch19.addConstraint([
    Sketcher.Constraint("Coincident", 0, 1, 1, 2),
    Sketcher.Constraint("Coincident", 1, 1, 0, 2),
    Sketcher.Constraint("Vertical", 0),
    Sketcher.Constraint("Equal", 1, 2),
    Sketcher.Constraint("Equal", 2, 3),
    Sketcher.Constraint("Equal", 3, 4),
    Sketcher.Constraint("Equal", 4, 5),
    Sketcher.Constraint("Equal", 5, 6),
    Sketcher.Constraint("Equal", 6, 7),
    Sketcher.Constraint("Equal", 7, 8),
    Sketcher.Constraint("Horizontal", 4, 3, 6, 3),
    Sketcher.Constraint("Horizontal", 3, 3, 7, 3),
    Sketcher.Constraint("Horizontal", 2, 3, 8, 3),
    Sketcher.Constraint("Horizontal", 7, 3, 9, 3),
    Sketcher.Constraint("Vertical", 2, 3, 4, 3),
    Sketcher.Constraint("Vertical", 1, 3, 5, 3),
    Sketcher.Constraint("Vertical", 6, 3, 8, 3),
    Sketcher.Constraint("Vertical", 5, 3, 9, 3),
    Sketcher.Constraint("Vertical", 9, 3, 0, 1),
    Sketcher.Constraint("Diameter", 2, 7.0),
    Sketcher.Constraint("Diameter", 9, 11.8),
    Sketcher.Constraint("DistanceX", 1, 3, 3, 3, 11.0),
    Sketcher.Constraint("DistanceY", 3, 3, 1, 3, 11.0),
    Sketcher.Constraint("DistanceY", 5, 3, 3, 3, 11.0),
    Sketcher.Constraint("DistanceX", 7, 3, 1, 3, 11.0),
    Sketcher.Constraint("DistanceY", 1, 3, -1, 1, 37.0),
    Sketcher.Constraint("DistanceX", -1, 1, 1, 3, 29.65),
    Sketcher.Constraint("DistanceX", -1, 1, 2, 3, 37.4282),
    Sketcher.Constraint("DistanceY", 2, 3, -1, 1, 40.2218),
    Sketcher.Constraint("DistanceY", 4, 3, -1, 1, 55.7782),
    Sketcher.Constraint("DistanceX", -1, 1, 6, 3, 21.8718),
])
pad12 = body.newObject("PartDesign::Pad", "Pad011")
pad12.Profile = sketch19
pad12.Length = 1

# Sketch on YZ plane
sketch20 = body.newObject("Sketcher::SketchObject", "Sketch019")
sketch20.AttachmentSupport = (doc.getObject("YZ_Plane"), [""])
sketch20.MapMode = "FlatFace"
sketch20.addGeometry([
    Part.LineSegment(App.Vector(29.65, -33.5, 0), App.Vector(29.65, -40.5, 0)),
    Part.ArcOfCircle(Part.Circle(App.Vector(29.65, -37, 0), App.Vector(0, 0, 1), 3.5), math.radians(-90), math.radians(90)),
], False)
sketch20.addConstraint([
    Sketcher.Constraint("Coincident", 0, 1, 1, 2),
    Sketcher.Constraint("Coincident", 1, 1, 0, 2),
    Sketcher.Constraint("Vertical", 0),
    Sketcher.Constraint("Vertical", 1, 3, 0, 1),
    Sketcher.Constraint("Radius", 1, 3.5),
    Sketcher.Constraint("DistanceY", 1, 3, -1, 1, 37.0),
    Sketcher.Constraint("DistanceX", -1, 1, 1, 3, 29.65),
])
pad13 = body.newObject("PartDesign::Pad", "Pad012")
pad13.Profile = sketch20
pad13.Length = 1

# Sketch on YZ plane
sketch21 = body.newObject("Sketcher::SketchObject", "Sketch020")
sketch21.AttachmentSupport = (doc.getObject("YZ_Plane"), [""])
sketch21.MapMode = "FlatFace"
sketch21.AttachmentOffset = App.Placement(App.Vector(0, 0, 1), App.Rotation())
sketch21.addGeometry(Part.Circle(App.Vector(29.65, -48, 0), App.Vector(0, 0, 1), 5.9), False)
sketch21.addConstraint([
    Sketcher.Constraint("Diameter", 0, 11.8),
    Sketcher.Constraint("DistanceY", 0, 3, -1, 1, 48.0),
    Sketcher.Constraint("DistanceX", -1, 1, 0, 3, 29.65),
])
pocket8 = body.newObject("PartDesign::Pocket", "Pocket007")
pocket8.Profile = sketch21
pocket8.Length = 3

# Sketch on YZ plane
sketch22 = body.newObject("Sketcher::SketchObject", "Sketch021")
sketch22.AttachmentSupport = (doc.getObject("YZ_Plane"), [""])
sketch22.MapMode = "FlatFace"
sketch22.AttachmentOffset = App.Placement(App.Vector(0, 0, -2), App.Rotation())
sketch22.addGeometry(Part.Circle(App.Vector(29.65, -48, 0), App.Vector(0, 0, 1), 5.9), False)
sketch22.addConstraint([
    Sketcher.Constraint("Diameter", 0, 11.8),
    Sketcher.Constraint("DistanceY", 0, 3, -1, 1, 48.0),
    Sketcher.Constraint("DistanceX", -1, 1, 0, 3, 29.65),
])
pocket9 = body.newObject("PartDesign::Pocket", "Pocket008")
pocket9.Profile = sketch22
pocket9.Length = 20

# Sketch on YZ plane
sketch23 = body.newObject("Sketcher::SketchObject", "Sketch022")
sketch23.AttachmentSupport = (doc.getObject("YZ_Plane"), [""])
sketch23.MapMode = "FlatFace"
sketch23.AttachmentOffset = App.Placement(App.Vector(0, 0, 1), App.Rotation())
sketch23.addGeometry([
    Part.Circle(App.Vector(29.65, -59, 0), App.Vector(0, 0, 1), 2.25),  # 0
    Part.Circle(App.Vector(18.65, -48, 0), App.Vector(0, 0, 1), 2.25),  # 1
    Part.Circle(App.Vector(29.65, -37, 0), App.Vector(0, 0, 1), 2.25),  # 2
    Part.Circle(App.Vector(40.65, -48, 0), App.Vector(0, 0, 1), 2.25),  # 3
    Part.Circle(App.Vector(37.4282, -55.7782, 0), App.Vector(0, 0, 1), 2.25),  # 4
    Part.Circle(App.Vector(37.4282, -40.2218, 0), App.Vector(0, 0, 1), 2.25),  # 5
    Part.Circle(App.Vector(21.8718, -40.2218, 0), App.Vector(0, 0, 1), 2.25),  # 6
    Part.Circle(App.Vector(21.8718, -55.7782, 0), App.Vector(0, 0, 1), 2.25),  # 7
], False)
sketch23.addConstraint([
    Sketcher.Constraint("Equal", 0, 1),
    Sketcher.Constraint("Equal", 1, 2),
    Sketcher.Constraint("Equal", 2, 3),
    Sketcher.Constraint("Equal", 3, 4),
    Sketcher.Constraint("Equal", 4, 5),
    Sketcher.Constraint("Equal", 5, 6),
    Sketcher.Constraint("Equal", 6, 7),
    Sketcher.Constraint("Horizontal", 1, 3, 3, 3),
    Sketcher.Constraint("Horizontal", 5, 3, 6, 3),
    Sketcher.Constraint("Horizontal", 4, 3, 7, 3),
    Sketcher.Constraint("Vertical", 0, 3, 2, 3),
    Sketcher.Constraint("Vertical", 4, 3, 5, 3),
    Sketcher.Constraint("Vertical", 6, 3, 7, 3),
    Sketcher.Constraint("Diameter", 0, 4.5),
    Sketcher.Constraint("DistanceY", 0, 3, -1, 1, 59.0),
    Sketcher.Constraint("DistanceY", 1, 3, -1, 1, 48.0),
    Sketcher.Constraint("DistanceY", 2, 3, -1, 1, 37.0),
    Sketcher.Constraint("DistanceX", 1, 3, 0, 3, 11.0),
    Sketcher.Constraint("DistanceX", 0, 3, 3, 3, 11.0),
    Sketcher.Constraint("DistanceX", -1, 1, 0, 3, 29.65),
    Sketcher.Constraint("DistanceX", -1, 1, 4, 3, 37.4282),
    Sketcher.Constraint("DistanceY", 4, 3, -1, 1, 55.7782),
    Sketcher.Constraint("DistanceY", 5, 3, -1, 1, 40.2218),
    Sketcher.Constraint("DistanceX", -1, 1, 6, 3, 21.8718),
])
pad14 = body.newObject("PartDesign::Pad", "Pad013")
pad14.Profile = sketch23
pad14.Length = 2.5

# Sketch on YZ plane
sketch24 = body.newObject("Sketcher::SketchObject", "Sketch023")
sketch24.AttachmentSupport = (doc.getObject("YZ_Plane"), [""])
sketch24.MapMode = "FlatFace"
sketch24.AttachmentOffset = App.Placement(App.Vector(0, 0, 3.5), App.Rotation())
add_polygon(sketch24, [(38.7724, -55.0021), (37.4282, -54.2261), (36.084, -55.0021), (36.084, -56.5543), (37.4282, -57.3303), (38.7724, -56.5543)])  # lines 0-5
add_polygon(sketch24, [(40.2483, -49.4993), (41.7476, -49.0976), (42.1493, -47.5983), (41.0517, -46.5008), (39.5525, -46.9025), (39.1508, -48.4017)])  # lines 6-11
add_polygon(sketch24, [(38.2043, -41.566), (38.9803, -40.2219), (38.2043, -38.8777), (36.6521, -38.8777), (35.8761, -40.2219), (36.6521, -41.566)])  # lines 12-17
add_polygon(sketch24, [(31.1493, -37.4017), (30.7476, -35.9025), (29.2483, -35.5008), (28.1508, -36.5983), (28.5525, -38.0976), (30.0517, -38.4993)])  # lines 18-23
add_polygon(sketch24, [(23.216, -39.4458), (21.8719, -38.6697), (20.5277, -39.4458), (20.5277, -40.9979), (21.8719, -41.774), (23.216, -40.9979)])  # lines 24-29
add_polygon(sketch24, [(19.0517, -46.5008), (17.5525, -46.9025), (17.1508, -48.4017), (18.2483, -49.4993), (19.7476, -49.0976), (20.1493, -47.5983)])  # lines 30-35
add_polygon(sketch24, [(21.0958, -54.434), (20.3197, -55.7782), (21.0958, -57.1224), (22.6479, -57.1224), (23.424, -55.7782), (22.6479, -54.434)])  # lines 36-41
add_polygon(sketch24, [(28.1508, -58.5983), (28.5525, -60.0976), (30.0517, -60.4993), (31.1493, -59.4017), (30.7476, -57.9025), (29.2483, -57.5008)])  # lines 42-47
sketch24.addConstraint([
    Sketcher.Constraint("Vertical", 2),
    Sketcher.Constraint("Vertical", 5),
    Sketcher.Constraint("Horizontal", 14),
    Sketcher.Constraint("Horizontal", 17),
    Sketcher.Constraint("Vertical", 26),
    Sketcher.Constraint("Vertical", 29),
    Sketcher.Constraint("Horizontal", 38),
    Sketcher.Constraint("Horizontal", 41),
    Sketcher.Constraint("Parallel", 0, 3),
    Sketcher.Constraint("Parallel", 1, 4),
    Sketcher.Constraint("Parallel", 6, 9),
    Sketcher.Constraint("Parallel", 7, 10),
    Sketcher.Constraint("Parallel", 8, 11),
    Sketcher.Constraint("Perpendicular", 3, 12),
    Sketcher.Constraint("Perpendicular", 4, 13),
    Sketcher.Constraint("Parallel", 12, 15),
    Sketcher.Constraint("Parallel", 13, 16),
    Sketcher.Constraint("Perpendicular", 9, 18),
    Sketcher.Constraint("Perpendicular", 10, 19),
    Sketcher.Constraint("Perpendicular", 11, 20),
    Sketcher.Constraint("Parallel", 18, 21),
    Sketcher.Constraint("Parallel", 19, 22),
    Sketcher.Constraint("Parallel", 20, 23),
    Sketcher.Constraint("Perpendicular", 15, 24),
    Sketcher.Constraint("Perpendicular", 16, 25),
    Sketcher.Constraint("Parallel", 24, 27),
    Sketcher.Constraint("Parallel", 25, 28),
    Sketcher.Constraint("Perpendicular", 21, 30),
    Sketcher.Constraint("Perpendicular", 22, 31),
    Sketcher.Constraint("Perpendicular", 23, 32),
    Sketcher.Constraint("Parallel", 30, 33),
    Sketcher.Constraint("Parallel", 31, 34),
    Sketcher.Constraint("Parallel", 32, 35),
    Sketcher.Constraint("Perpendicular", 27, 36),
    Sketcher.Constraint("Perpendicular", 28, 37),
    Sketcher.Constraint("Parallel", 36, 39),
    Sketcher.Constraint("Parallel", 37, 40),
    Sketcher.Constraint("Perpendicular", 33, 42),
    Sketcher.Constraint("Perpendicular", 34, 43),
    Sketcher.Constraint("Perpendicular", 35, 44),
    Sketcher.Constraint("Parallel", 42, 45),
    Sketcher.Constraint("Parallel", 43, 46),
    Sketcher.Constraint("Parallel", 44, 47),
    Sketcher.Constraint("Horizontal", 2, 2, 4, 2),
    Sketcher.Constraint("Horizontal", 1, 2, 5, 2),
    Sketcher.Constraint("Horizontal", 12, 2, 15, 2),
    Sketcher.Constraint("Horizontal", 26, 2, 28, 2),
    Sketcher.Constraint("Horizontal", 25, 2, 29, 2),
    Sketcher.Constraint("Horizontal", 9, 2, 30, 2),
    Sketcher.Constraint("Horizontal", 10, 2, 31, 2),
    Sketcher.Constraint("Horizontal", 11, 2, 32, 2),
    Sketcher.Constraint("Horizontal", 6, 2, 33, 2),
    Sketcher.Constraint("Horizontal", 7, 2, 34, 2),
    Sketcher.Constraint("Horizontal", 36, 2, 39, 2),
    Sketcher.Constraint("Vertical", 0, 2, 3, 2),
    Sketcher.Constraint("Vertical", 14, 2, 16, 2),
    Sketcher.Constraint("Vertical", 38, 2, 40, 2),
    Sketcher.Constraint("Vertical", 21, 2, 42, 2),
    Sketcher.Constraint("Vertical", 22, 2, 43, 2),
    Sketcher.Constraint("Vertical", 23, 2, 44, 2),
    Sketcher.Constraint("Vertical", 18, 2, 45, 2),
    Sketcher.Constraint("Vertical", 19, 2, 46, 2),
    Sketcher.Constraint("Equal", 17, 38),
    Sketcher.Constraint("Equal", 41, 2),
    Sketcher.Constraint("Equal", 5, 26),
    Sketcher.Constraint("Equal", 4, 6),
    Sketcher.Constraint("Equal", 6, 7),
    Sketcher.Constraint("Equal", 7, 8),
    Sketcher.Constraint("Equal", 8, 9),
    Sketcher.Constraint("Equal", 11, 12),
    Sketcher.Constraint("Equal", 16, 18),
    Sketcher.Constraint("Equal", 18, 19),
    Sketcher.Constraint("Equal", 19, 20),
    Sketcher.Constraint("Equal", 20, 21),
    Sketcher.Constraint("Equal", 23, 24),
    Sketcher.Constraint("Equal", 35, 36),
    Sketcher.Constraint("Angle", 9, Q("-165.0003 deg")),
    Sketcher.Constraint("Angle", 10, Q("-104.9997 deg")),
    Sketcher.Constraint("Angle", 12, Q("60.0005 deg")),
    Sketcher.Constraint("Angle", 20, Q("-135 deg")),
    Sketcher.Constraint("DistanceX", 38, 1, 38, 2, 1.552),
    Sketcher.Constraint("DistanceX", 5, 2, 9, 2, 0.78),
    Sketcher.Constraint("DistanceY", 14, 2, 21, 2, 0.78),
    Sketcher.Constraint("DistanceX", 33, 2, 26, 2, 0.78),
    Sketcher.Constraint("DistanceY", 36, 2, 34, 2, 8.18),
    Sketcher.Constraint("Distance", 0, 1.552),
    Sketcher.Constraint("DistanceY", 0, 2, -1, 1, 54.226),
    Sketcher.Constraint("DistanceX", -1, 1, 1, 2, 36.084),
    Sketcher.Constraint("DistanceY", 12, 2, -1, 1, 40.222),
    Sketcher.Constraint("DistanceX", -1, 1, 14, 2, 36.652),
    Sketcher.Constraint("DistanceX", -1, 1, 24, 2, 21.872),
    Sketcher.Constraint("DistanceY", 26, 2, -1, 1, 40.998),
    Sketcher.Constraint("DistanceX", -1, 1, 38, 2, 22.648),
    Sketcher.Constraint("DistanceY", 40, 2, -1, 1, 54.434),
    Sketcher.Constraint("DistanceX", 19, 2, 13, 2, 8.956),
    Sketcher.Constraint("DistanceY", 43, 2, 2, 2, 3.945),
])
pocket10 = body.newObject("PartDesign::Pocket", "Pocket009")
pocket10.Profile = sketch24
pocket10.Length = 1.5

doc.recompute()
